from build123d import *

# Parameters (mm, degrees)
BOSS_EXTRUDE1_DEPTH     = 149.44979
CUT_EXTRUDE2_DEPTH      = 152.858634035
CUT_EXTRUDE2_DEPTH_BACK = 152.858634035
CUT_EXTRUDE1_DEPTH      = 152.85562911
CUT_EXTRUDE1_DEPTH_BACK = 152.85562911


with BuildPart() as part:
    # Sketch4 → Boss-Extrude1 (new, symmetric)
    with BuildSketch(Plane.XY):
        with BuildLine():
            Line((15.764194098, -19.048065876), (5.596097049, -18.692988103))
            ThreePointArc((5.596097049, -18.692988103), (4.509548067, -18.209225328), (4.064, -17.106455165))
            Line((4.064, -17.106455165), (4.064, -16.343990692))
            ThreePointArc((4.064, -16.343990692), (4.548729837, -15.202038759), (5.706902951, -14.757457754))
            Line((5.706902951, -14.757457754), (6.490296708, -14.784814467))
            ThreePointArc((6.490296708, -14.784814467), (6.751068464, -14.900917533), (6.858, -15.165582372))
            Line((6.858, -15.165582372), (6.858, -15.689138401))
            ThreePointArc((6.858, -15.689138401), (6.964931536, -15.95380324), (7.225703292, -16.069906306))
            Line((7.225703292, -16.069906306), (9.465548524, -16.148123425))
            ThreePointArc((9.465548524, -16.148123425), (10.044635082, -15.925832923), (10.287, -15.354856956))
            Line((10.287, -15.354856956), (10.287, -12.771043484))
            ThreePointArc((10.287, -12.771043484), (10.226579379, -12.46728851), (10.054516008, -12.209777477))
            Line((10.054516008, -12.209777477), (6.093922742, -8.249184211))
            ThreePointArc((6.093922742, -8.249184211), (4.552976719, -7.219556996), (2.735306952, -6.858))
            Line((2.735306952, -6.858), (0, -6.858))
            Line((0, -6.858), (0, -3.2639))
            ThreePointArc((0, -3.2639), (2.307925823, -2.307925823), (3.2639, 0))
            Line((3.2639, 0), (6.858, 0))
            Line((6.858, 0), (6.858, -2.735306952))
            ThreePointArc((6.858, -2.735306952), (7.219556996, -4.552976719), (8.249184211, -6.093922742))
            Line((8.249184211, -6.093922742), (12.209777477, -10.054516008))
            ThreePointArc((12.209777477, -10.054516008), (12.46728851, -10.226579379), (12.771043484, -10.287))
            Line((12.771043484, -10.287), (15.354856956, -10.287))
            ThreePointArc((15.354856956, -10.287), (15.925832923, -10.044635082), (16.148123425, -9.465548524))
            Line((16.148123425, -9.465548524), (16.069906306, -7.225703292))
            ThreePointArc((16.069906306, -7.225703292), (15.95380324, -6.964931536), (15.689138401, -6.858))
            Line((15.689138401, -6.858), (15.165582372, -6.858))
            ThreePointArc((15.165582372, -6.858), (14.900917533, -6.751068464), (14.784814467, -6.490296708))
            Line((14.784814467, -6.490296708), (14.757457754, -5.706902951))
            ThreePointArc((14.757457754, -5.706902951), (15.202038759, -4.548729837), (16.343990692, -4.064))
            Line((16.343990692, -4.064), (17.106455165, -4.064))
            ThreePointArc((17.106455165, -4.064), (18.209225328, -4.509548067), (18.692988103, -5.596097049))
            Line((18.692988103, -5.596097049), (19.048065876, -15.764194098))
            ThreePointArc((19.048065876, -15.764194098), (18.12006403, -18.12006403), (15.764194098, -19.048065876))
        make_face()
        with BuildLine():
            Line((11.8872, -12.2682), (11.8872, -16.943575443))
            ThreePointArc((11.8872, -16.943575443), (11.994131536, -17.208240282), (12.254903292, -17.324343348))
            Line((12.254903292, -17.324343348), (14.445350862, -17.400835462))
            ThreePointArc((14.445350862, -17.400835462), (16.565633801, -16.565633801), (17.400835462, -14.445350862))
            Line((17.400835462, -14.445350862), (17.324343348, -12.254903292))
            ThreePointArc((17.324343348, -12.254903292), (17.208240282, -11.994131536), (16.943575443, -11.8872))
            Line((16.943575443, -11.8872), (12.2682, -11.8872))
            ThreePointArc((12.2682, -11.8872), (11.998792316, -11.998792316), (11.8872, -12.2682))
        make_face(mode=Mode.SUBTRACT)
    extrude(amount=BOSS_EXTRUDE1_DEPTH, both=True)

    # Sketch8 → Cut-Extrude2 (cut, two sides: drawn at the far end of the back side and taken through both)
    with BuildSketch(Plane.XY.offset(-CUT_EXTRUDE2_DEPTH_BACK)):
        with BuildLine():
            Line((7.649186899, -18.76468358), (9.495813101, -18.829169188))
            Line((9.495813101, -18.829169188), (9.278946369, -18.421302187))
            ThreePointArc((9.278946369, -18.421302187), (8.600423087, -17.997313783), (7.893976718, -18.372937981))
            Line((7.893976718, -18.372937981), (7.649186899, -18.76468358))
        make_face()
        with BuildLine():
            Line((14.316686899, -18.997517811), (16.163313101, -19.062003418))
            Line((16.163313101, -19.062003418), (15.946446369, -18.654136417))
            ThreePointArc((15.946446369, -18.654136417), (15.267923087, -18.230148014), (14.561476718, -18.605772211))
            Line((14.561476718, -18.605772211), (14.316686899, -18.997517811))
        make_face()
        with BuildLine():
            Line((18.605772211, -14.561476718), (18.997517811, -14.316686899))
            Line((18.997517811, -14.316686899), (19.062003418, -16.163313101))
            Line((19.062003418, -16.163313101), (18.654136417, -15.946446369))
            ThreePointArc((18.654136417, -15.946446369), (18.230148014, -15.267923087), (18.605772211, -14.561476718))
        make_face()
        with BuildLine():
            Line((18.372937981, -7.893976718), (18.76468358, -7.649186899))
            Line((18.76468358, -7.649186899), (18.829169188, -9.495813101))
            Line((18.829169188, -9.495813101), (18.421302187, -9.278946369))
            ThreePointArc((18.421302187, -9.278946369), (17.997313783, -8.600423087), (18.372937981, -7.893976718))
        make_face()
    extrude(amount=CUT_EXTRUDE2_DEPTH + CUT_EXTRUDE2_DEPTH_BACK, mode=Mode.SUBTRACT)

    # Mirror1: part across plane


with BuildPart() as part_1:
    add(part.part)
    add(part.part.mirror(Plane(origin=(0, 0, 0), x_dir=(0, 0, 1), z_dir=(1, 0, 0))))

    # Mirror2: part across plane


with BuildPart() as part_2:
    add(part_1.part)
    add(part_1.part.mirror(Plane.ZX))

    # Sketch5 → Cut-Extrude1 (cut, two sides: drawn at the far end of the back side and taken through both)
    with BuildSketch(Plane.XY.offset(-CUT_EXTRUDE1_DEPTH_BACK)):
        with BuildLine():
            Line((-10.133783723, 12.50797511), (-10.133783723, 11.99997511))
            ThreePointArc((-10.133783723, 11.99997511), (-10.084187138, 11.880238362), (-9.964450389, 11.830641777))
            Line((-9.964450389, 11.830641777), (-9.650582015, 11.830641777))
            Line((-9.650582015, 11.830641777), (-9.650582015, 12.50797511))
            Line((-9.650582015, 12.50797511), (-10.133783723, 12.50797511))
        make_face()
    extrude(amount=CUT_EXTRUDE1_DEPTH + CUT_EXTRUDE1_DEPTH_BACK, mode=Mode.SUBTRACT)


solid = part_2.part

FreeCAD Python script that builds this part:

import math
import FreeCAD as App
import Part
import Sketcher
from FreeCAD import Vector
Q = App.Units.Quantity

doc = App.newDocument("Part")
body = doc.addObject("PartDesign::Body", "Body")

sketch1 = body.newObject("Sketcher::SketchObject", "Sketch")
sketch1.AttachmentSupport = (doc.getObject("XY_Plane"), [""])
sketch1.MapMode = "FlatFace"
sketch1.addGeometry([
    Part.LineSegment(Vector(5.596097, -18.692988, 0), Vector(15.764194, -19.048066, 0)),
    Part.ArcOfCircle(Part.Circle(Vector(15.875, -15.875, 0), Vector(0, 0, 1), 3.175), math.radians(-92), math.radians(2)),
    Part.LineSegment(Vector(19.048066, -15.764194, 0), Vector(18.692988, -5.596097, 0)),
    Part.ArcOfCircle(Part.Circle(Vector(17.106455, -5.6515, 0), Vector(0, 0, 1), 1.5875), math.radians(2), math.radians(90)),
    Part.LineSegment(Vector(17.106455, -4.064, 0), Vector(16.343991, -4.064, 0)),
    Part.ArcOfCircle(Part.Circle(Vector(16.343991, -5.6515, 0), Vector(0, 0, 1), 1.5875), math.radians(90), math.radians(182)),
    Part.LineSegment(Vector(14.757458, -5.706903, 0), Vector(14.784814, -6.490297, 0)),
    Part.ArcOfCircle(Part.Circle(Vector(15.165582, -6.477, 0), Vector(0, 0, 1), 0.381), math.radians(-178), math.radians(-90)),
    Part.LineSegment(Vector(15.165582, -6.858, 0), Vector(15.689138, -6.858, 0)),
    Part.ArcOfCircle(Part.Circle(Vector(15.689138, -7.239, 0), Vector(0, 0, 1), 0.381), math.radians(2), math.radians(90)),
    Part.LineSegment(Vector(16.069906, -7.225703, 0), Vector(16.148123, -9.465549, 0)),
    Part.ArcOfCircle(Part.Circle(Vector(15.354857, -9.49325, 0), Vector(0, 0, 1), 0.79375), math.radians(-90), math.radians(2)),
    Part.LineSegment(Vector(15.354857, -10.287, 0), Vector(12.771043, -10.287, 0)),
    Part.ArcOfCircle(Part.Circle(Vector(12.771043, -9.49325, 0), Vector(0, 0, 1), 0.79375), math.radians(-135), math.radians(-90)),
    Part.LineSegment(Vector(12.209777, -10.054516, 0), Vector(8.249184, -6.093923, 0)),
    Part.ArcOfCircle(Part.Circle(Vector(11.6078, -2.735307, 0), Vector(0, 0, 1), 4.7498), math.radians(180), math.radians(225)),
    Part.LineSegment(Vector(6.858, -2.735307, 0), Vector(6.858, 0, 0)),
    Part.LineSegment(Vector(6.858, 0, 0), Vector(3.2639, 0, 0)),
    Part.ArcOfCircle(Part.Circle(Vector(0, 0, 0), Vector(0, 0, 1), 3.2639), math.radians(-90), math.radians(0)),
    Part.LineSegment(Vector(0, -3.2639, 0), Vector(0, -6.858, 0)),
    Part.LineSegment(Vector(0, -6.858, 0), Vector(2.735307, -6.858, 0)),
    Part.ArcOfCircle(Part.Circle(Vector(2.735307, -11.6078, 0), Vector(0, 0, 1), 4.7498), math.radians(45), math.radians(90)),
    Part.LineSegment(Vector(6.093923, -8.249184, 0), Vector(10.054516, -12.209777, 0)),
    Part.ArcOfCircle(Part.Circle(Vector(9.49325, -12.771043, 0), Vector(0, 0, 1), 0.79375), math.radians(0), math.radians(45)),
    Part.LineSegment(Vector(10.287, -12.771043, 0), Vector(10.287, -15.354857, 0)),
    Part.ArcOfCircle(Part.Circle(Vector(9.49325, -15.354857, 0), Vector(0, 0, 1), 0.79375), math.radians(-92), math.radians(0)),
    Part.LineSegment(Vector(9.465549, -16.148123, 0), Vector(7.225703, -16.069906, 0)),
    Part.ArcOfCircle(Part.Circle(Vector(7.239, -15.689138, 0), Vector(0, 0, 1), 0.381), math.radians(180), math.radians(268)),
    Part.LineSegment(Vector(6.858, -15.689138, 0), Vector(6.858, -15.165582, 0)),
    Part.ArcOfCircle(Part.Circle(Vector(6.477, -15.165582, 0), Vector(0, 0, 1), 0.381), math.radians(0), math.radians(88)),
    Part.LineSegment(Vector(6.490297, -14.784814, 0), Vector(5.706903, -14.757458, 0)),
    Part.ArcOfCircle(Part.Circle(Vector(5.6515, -16.343991, 0), Vector(0, 0, 1), 1.5875), math.radians(88), math.radians(180)),
    Part.LineSegment(Vector(4.064, -16.343991, 0), Vector(4.064, -17.106455, 0)),
    Part.ArcOfCircle(Part.Circle(Vector(5.6515, -17.106455, 0), Vector(0, 0, 1), 1.5875), math.radians(180), math.radians(268)),
    Part.ArcOfCircle(Part.Circle(Vector(12.2682, -12.2682, 0), Vector(0, 0, 1), 0.381), math.radians(90), math.radians(180)),
    Part.LineSegment(Vector(12.2682, -11.8872, 0), Vector(16.943575, -11.8872, 0)),
    Part.ArcOfCircle(Part.Circle(Vector(16.943575, -12.2682, 0), Vector(0, 0, 1), 0.381), math.radians(2), math.radians(90)),
    Part.LineSegment(Vector(17.324343, -12.254903, 0), Vector(17.400835, -14.445351, 0)),
    Part.ArcOfCircle(Part.Circle(Vector(14.545076, -14.545076, 0), Vector(0, 0, 1), 2.8575), math.radians(-92), math.radians(2)),
    Part.LineSegment(Vector(14.445351, -17.400835, 0), Vector(12.254903, -17.324343, 0)),
    Part.ArcOfCircle(Part.Circle(Vector(12.2682, -16.943575, 0), Vector(0, 0, 1), 0.381), math.radians(180), math.radians(268)),
    Part.LineSegment(Vector(11.8872, -16.943575, 0), Vector(11.8872, -12.2682, 0)),
], False)
sketch1.addConstraint([
    Sketcher.Constraint("Tangent", 0, 2, 1, 1),
    Sketcher.Constraint("Tangent", 1, 2, 2, 1),
    Sketcher.Constraint("Tangent", 2, 2, 3, 1),
    Sketcher.Constraint("Tangent", 3, 2, 4, 1),
    Sketcher.Constraint("Tangent", 4, 2, 5, 1),
    Sketcher.Constraint("Tangent", 5, 2, 6, 1),
    Sketcher.Constraint("Tangent", 6, 2, 7, 1),
    Sketcher.Constraint("Tangent", 7, 2, 8, 1),
    Sketcher.Constraint("Tangent", 8, 2, 9, 2),
    Sketcher.Constraint("Tangent", 9, 1, 10, 1),
    Sketcher.Constraint("Tangent", 10, 2, 11, 2),
    Sketcher.Constraint("Tangent", 11, 1, 12, 1),
    Sketcher.Constraint("Tangent", 12, 2, 13, 2),
    Sketcher.Constraint("Tangent", 13, 1, 14, 1),
    Sketcher.Constraint("Tangent", 14, 2, 15, 2),
    Sketcher.Constraint("Tangent", 15, 1, 16, 1),
    Sketcher.Constraint("Coincident", 16, 2, 17, 1),
    Sketcher.Constraint("Coincident", 17, 2, 18, 2),
    Sketcher.Constraint("Coincident", 18, 1, 19, 1),
    Sketcher.Constraint("Coincident", 19, 2, 20, 1),
    Sketcher.Constraint("Tangent", 20, 2, 21, 2),
    Sketcher.Constraint("Tangent", 21, 1, 22, 1),
    Sketcher.Constraint("Tangent", 22, 2, 23, 2),
    Sketcher.Constraint("Tangent", 23, 1, 24, 1),
    Sketcher.Constraint("Tangent", 24, 2, 25, 2),
    Sketcher.Constraint("Tangent", 25, 1, 26, 1),
    Sketcher.Constraint("Tangent", 26, 2, 27, 2),
    Sketcher.Constraint("Tangent", 27, 1, 28, 1),
    Sketcher.Constraint("Tangent", 28, 2, 29, 1),
    Sketcher.Constraint("Tangent", 29, 2, 30, 1),
    Sketcher.Constraint("Tangent", 30, 2, 31, 1),
    Sketcher.Constraint("Tangent", 31, 2, 32, 1),
    Sketcher.Constraint("Tangent", 32, 2, 33, 1),
    Sketcher.Constraint("Tangent", 33, 2, 0, 1),
    Sketcher.Constraint("Tangent", 34, 1, 35, 1),
    Sketcher.Constraint("Tangent", 35, 2, 36, 2),
    Sketcher.Constraint("Tangent", 36, 1, 37, 1),
    Sketcher.Constraint("Tangent", 37, 2, 38, 2),
    Sketcher.Constraint("Tangent", 38, 1, 39, 1),
    Sketcher.Constraint("Tangent", 39, 2, 40, 2),
    Sketcher.Constraint("Tangent", 40, 1, 41, 1),
    Sketcher.Constraint("Tangent", 41, 2, 34, 2),
    Sketcher.Constraint("Horizontal", 4),
    Sketcher.Constraint("Horizontal", 8),
    Sketcher.Constraint("Horizontal", 12),
    Sketcher.Constraint("Vertical", 16),
    Sketcher.Constraint("Horizontal", 17),
    Sketcher.Constraint("Vertical", 19),
    Sketcher.Constraint("Horizontal", 20),
    Sketcher.Constraint("Vertical", 24),
    Sketcher.Constraint("Vertical", 28),
    Sketcher.Constraint("Vertical", 32),
    Sketcher.Constraint("Horizontal", 35),
    Sketcher.Constraint("Vertical", 41),
    Sketcher.Constraint("Coincident", 18, 3, -1, 1),
    Sketcher.Constraint("Equal", 3, 5),
    Sketcher.Constraint("Equal", 7, 9),
    Sketcher.Constraint("Equal", 11, 13),
    Sketcher.Constraint("Equal", 15, 21),
    Sketcher.Constraint("Equal", 13, 23),
    Sketcher.Constraint("Equal", 23, 25),
    Sketcher.Constraint("Equal", 9, 27),
    Sketcher.Constraint("Equal", 27, 29),
    Sketcher.Constraint("Equal", 5, 31),
    Sketcher.Constraint("Equal", 31, 33),
    Sketcher.Constraint("Equal", 29, 34),
    Sketcher.Constraint("Equal", 34, 36),
    Sketcher.Constraint("Equal", 36, 40),
    Sketcher.Constraint("PointOnObject", 16, 2, -1),
    Sketcher.Constraint("PointOnObject", 18, 1, -2),
    Sketcher.Constraint("Parallel", 2, 6),
    Sketcher.Constraint("Parallel", 6, 10),
    Sketcher.Constraint("Parallel", 14, 22),
    Sketcher.Constraint("Parallel", 0, 26),
    Sketcher.Constraint("Parallel", 26, 30),
    Sketcher.Constraint("Parallel", 10, 37),
    Sketcher.Constraint("Parallel", 30, 39),
    Sketcher.Constraint("Horizontal", 8, 2, 19, 2),
    Sketcher.Constraint("Vertical", 16, 2, 27, 1),
    Sketcher.Constraint("Equal", 20, 16),
    Sketcher.Constraint("Equal", 17, 19),
    Sketcher.Constraint("Equal", 12, 24),
    Sketcher.Constraint("Equal", 8, 28),
    Sketcher.Constraint("Equal", 4, 32),
    Sketcher.Constraint("Equal", 35, 41),
    Sketcher.Constraint("Equal", 0, 2),
    Sketcher.Constraint("Equal", 14, 22),
    Sketcher.Constraint("Equal", 10, 26),
    Sketcher.Constraint("Equal", 6, 30),
    Sketcher.Constraint("Angle", 0, Q("-2 deg")),
    Sketcher.Constraint("Radius", 1, Q("0.125 in")),
    Sketcher.Constraint("Radius", 3, Q("0.0625 in")),
    Sketcher.Constraint("Radius", 7, Q("0.015 in")),
    Sketcher.Constraint("Radius", 11, Q("0.03125 in")),
    Sketcher.Constraint("Radius", 15, Q("0.187 in")),
    Sketcher.Constraint("Radius", 18, Q("0.1285 in")),
    Sketcher.Constraint("Radius", 38, Q("0.1125 in")),
    Sketcher.Constraint("DistanceY", 3, 2, -1, 1, Q("0.16 in")),
    Sketcher.Constraint("DistanceY", 7, 2, -1, 1, Q("0.27 in")),
    Sketcher.Constraint("DistanceX", -1, 1, 1, 3, Q("0.625 in")),
    Sketcher.Constraint("DistanceX", -1, 1, 34, 3, Q("0.483 in")),
    Sketcher.Constraint("DistanceY", 34, 3, -1, 1, Q("0.483 in")),
    Sketcher.Constraint("DistanceY", 11, 1, -1, 1, Q("0.405 in")),
    Sketcher.Constraint("DistanceX", -1, 1, 13, 1, Q("0.4806999 in")),
    Sketcher.Constraint("DistanceX", 4, 2, 4, 1, Q("0.762464 mm")),
    Sketcher.Constraint("DistanceX", 8, 1, 8, 2, Q("0.523556 mm")),
    Sketcher.Constraint("DistanceX", 35, 1, 35, 2, Q("4.675375 mm")),
])
pad1 = body.newObject("PartDesign::Pad", "Pad")
pad1.Profile = sketch1
pad1.Length = Q("11.7677 in")
pad1.Midplane = True

sketch2 = body.newObject("Sketcher::SketchObject", "Sketch001")
sketch2.AttachmentSupport = (doc.getObject("XY_Plane"), [""])
sketch2.MapMode = "FlatFace"
sketch2.addGeometry([
    Part.LineSegment(Vector(7.649187, -18.764684, 0), Vector(9.495813, -18.829169, 0)),
    Part.LineSegment(Vector(9.495813, -18.829169, 0), Vector(9.278946, -18.421302, 0)),
    Part.ArcOfCircle(Part.Circle(Vector(8.5725, -18.796926, 0), Vector(0, 0, 1), 0.8001), math.radians(28), math.radians(148)),
    Part.LineSegment(Vector(7.893977, -18.372938, 0), Vector(7.649187, -18.764684, 0)),
    Part.LineSegment(Vector(14.316687, -18.997518, 0), Vector(16.163313, -19.062003, 0)),
    Part.LineSegment(Vector(16.163313, -19.062003, 0), Vector(15.946446, -18.654136, 0)),
    Part.ArcOfCircle(Part.Circle(Vector(15.24, -19.029761, 0), Vector(0, 0, 1), 0.8001), math.radians(28), math.radians(148)),
    Part.LineSegment(Vector(14.561477, -18.605772, 0), Vector(14.316687, -18.997518, 0)),
    Part.LineSegment(Vector(18.997518, -14.316687, 0), Vector(18.605772, -14.561477, 0)),
    Part.ArcOfCircle(Part.Circle(Vector(19.029761, -15.24, 0), Vector(0, 0, 1), 0.8001), math.radians(122), math.radians(242)),
    Part.LineSegment(Vector(18.654136, -15.946446, 0), Vector(19.062003, -16.163313, 0)),
    Part.LineSegment(Vector(19.062003, -16.163313, 0), Vector(18.997518, -14.316687, 0)),
    Part.LineSegment(Vector(18.764684, -7.649187, 0), Vector(18.372938, -7.893977, 0)),
    Part.ArcOfCircle(Part.Circle(Vector(18.796926, -8.5725, 0), Vector(0, 0, 1), 0.8001), math.radians(122), math.radians(242)),
    Part.LineSegment(Vector(18.421302, -9.278946, 0), Vector(18.829169, -9.495813, 0)),
    Part.LineSegment(Vector(18.829169, -9.495813, 0), Vector(18.764684, -7.649187, 0)),
], False)
sketch2.addConstraint([
    Sketcher.Constraint("Coincident", 0, 2, 1, 1),
    Sketcher.Constraint("Tangent", 1, 2, 2, 1),
    Sketcher.Constraint("Tangent", 2, 2, 3, 1),
    Sketcher.Constraint("Coincident", 3, 2, 0, 1),
    Sketcher.Constraint("Coincident", 4, 2, 5, 1),
    Sketcher.Constraint("Tangent", 5, 2, 6, 1),
    Sketcher.Constraint("Tangent", 6, 2, 7, 1),
    Sketcher.Constraint("Coincident", 7, 2, 4, 1),
    Sketcher.Constraint("Tangent", 8, 2, 9, 1),
    Sketcher.Constraint("Tangent", 9, 2, 10, 1),
    Sketcher.Constraint("Coincident", 10, 2, 11, 1),
    Sketcher.Constraint("Coincident", 11, 2, 8, 1),
    Sketcher.Constraint("Tangent", 12, 2, 13, 1),
    Sketcher.Constraint("Tangent", 13, 2, 14, 1),
    Sketcher.Constraint("Coincident", 14, 2, 15, 1),
    Sketcher.Constraint("Coincident", 15, 2, 12, 1),
    Sketcher.Constraint("Equal", 2, 6),
    Sketcher.Constraint("Equal", 6, 9),
    Sketcher.Constraint("Equal", 9, 13),
    Sketcher.Constraint("Parallel", 0, 4),
    Sketcher.Constraint("Parallel", 1, 5),
    Sketcher.Constraint("Parallel", 3, 7),
    Sketcher.Constraint("Parallel", 8, 12),
    Sketcher.Constraint("Parallel", 10, 14),
    Sketcher.Constraint("Parallel", 11, 15),
    Sketcher.Constraint("Equal", 1, 3),
    Sketcher.Constraint("Equal", 0, 4),
    Sketcher.Constraint("Equal", 7, 8),
    Sketcher.Constraint("Equal", 8, 10),
    Sketcher.Constraint("Equal", 10, 12),
    Sketcher.Constraint("Angle", 0, Q("-2 deg")),
    Sketcher.Constraint("Angle", 1, Q("118 deg")),
    Sketcher.Constraint("Angle", 8, Q("-148 deg")),
    Sketcher.Constraint("Angle", 10, Q("-28 deg")),
    Sketcher.Constraint("DistanceX", -1, 1, 6, 3, Q("0.6 in")),
    Sketcher.Constraint("DistanceY", 9, 3, -1, 1, Q("0.6 in")),
    Sketcher.Constraint("Radius", 2, Q("0.0315 in")),
    Sketcher.Constraint("DistanceX", -1, 1, 2, 3, Q("0.3375 in")),
    Sketcher.Constraint("DistanceY", 13, 3, -1, 1, Q("0.3375 in")),
    Sketcher.Constraint("DistanceY", 4, 2, 1, 2, Q("0.640701 mm")),
    Sketcher.Constraint("DistanceX", 12, 2, 9, 2, Q("0.281198 mm")),
    Sketcher.Constraint("Distance", 0, Q("1.847752 mm")),
    Sketcher.Constraint("DistanceY", 6, 3, -1, 1, Q("19.029761 mm")),
    Sketcher.Constraint("DistanceX", -1, 1, 9, 3, Q("19.029761 mm")),
])
pocket1 = body.newObject("PartDesign::Pocket", "Pocket")
pocket1.Profile = sketch2
pocket1.Type = "ThroughAll"
pocket1.Midplane = True
body2 = doc.addObject("PartDesign::Body", "Body001")
doc.recompute()

body2.BaseFeature = body
doc.recompute()

mirroring = doc.addObject("Part::Mirroring", "Mirroring")
mirroring.Source = body
mirroring.Base = Vector(0, 0, 0)
mirroring.Normal = Vector(1, 0, 0)
body3 = doc.addObject("PartDesign::Body", "Body002")
body3.BaseFeature = mirroring
boolean = body2.newObject("PartDesign::Boolean", "Boolean")
boolean.Type = "Fuse"
boolean.addObjects([body3])
doc.recompute()
body4 = doc.addObject("PartDesign::Body", "Body003")
doc.recompute()

body4.BaseFeature = body2
doc.recompute()

mirroring2 = doc.addObject("Part::Mirroring", "Mirroring001")
mirroring2.Source = body2
mirroring2.Base = Vector(0, 0, 0)
mirroring2.Normal = Vector(0, 1, 0)
body5 = doc.addObject("PartDesign::Body", "Body004")
body5.BaseFeature = mirroring2
boolean2 = body4.newObject("PartDesign::Boolean", "Boolean001")
boolean2.Type = "Fuse"
boolean2.addObjects([body5])
doc.recompute()

sketch3 = body4.newObject("Sketcher::SketchObject", "Sketch002")
sketch3.AttachmentSupport = (doc.getObject("XY_Plane003"), [""])
sketch3.MapMode = "FlatFace"
sketch3.addGeometry([
    Part.LineSegment(Vector(-10.133784, 12.507975, 0), Vector(-10.133784, 11.999975, 0)),
    Part.ArcOfCircle(Part.Circle(Vector(-9.96445, 11.999975, 0), Vector(0, 0, 1), 0.169333), math.radians(180), math.radians(270)),
    Part.LineSegment(Vector(-9.96445, 11.830642, 0), Vector(-9.650582, 11.830642, 0)),
    Part.LineSegment(Vector(-9.650582, 11.830642, 0), Vector(-9.650582, 12.507975, 0)),
    Part.LineSegment(Vector(-9.650582, 12.507975, 0), Vector(-10.133784, 12.507975, 0)),
], False)
sketch3.addConstraint([
    Sketcher.Constraint("Tangent", 0, 2, 1, 1),
    Sketcher.Constraint("Tangent", 1, 2, 2, 1),
    Sketcher.Constraint("Coincident", 2, 2, 3, 1),
    Sketcher.Constraint("Coincident", 3, 2, 4, 1),
    Sketcher.Constraint("Coincident", 4, 2, 0, 1),
    Sketcher.Constraint("Vertical", 0),
    Sketcher.Constraint("Horizontal", 2),
    Sketcher.Constraint("Vertical", 3),
    Sketcher.Constraint("Horizontal", 4),
    Sketcher.Constraint("DistanceY", 0, 2, 0, 1, Q("0.02 in")),
    Sketcher.Constraint("DistanceX", 4, 2, 4, 1, Q("0.483202 mm")),
    Sketcher.Constraint("Radius", 1, Q("0.169333 mm")),
    Sketcher.Constraint("DistanceX", 1, 3, -1, 1, Q("9.96445 mm")),
    Sketcher.Constraint("DistanceY", -1, 1, 1, 2, Q("11.830642 mm")),
])
pocket2 = body4.newObject("PartDesign::Pocket", "Pocket001")
pocket2.Profile = sketch3
pocket2.Type = "ThroughAll"
pocket2.Midplane = True
mirroring.Visibility = False
mirroring2.Visibility = False

doc.recompute()
